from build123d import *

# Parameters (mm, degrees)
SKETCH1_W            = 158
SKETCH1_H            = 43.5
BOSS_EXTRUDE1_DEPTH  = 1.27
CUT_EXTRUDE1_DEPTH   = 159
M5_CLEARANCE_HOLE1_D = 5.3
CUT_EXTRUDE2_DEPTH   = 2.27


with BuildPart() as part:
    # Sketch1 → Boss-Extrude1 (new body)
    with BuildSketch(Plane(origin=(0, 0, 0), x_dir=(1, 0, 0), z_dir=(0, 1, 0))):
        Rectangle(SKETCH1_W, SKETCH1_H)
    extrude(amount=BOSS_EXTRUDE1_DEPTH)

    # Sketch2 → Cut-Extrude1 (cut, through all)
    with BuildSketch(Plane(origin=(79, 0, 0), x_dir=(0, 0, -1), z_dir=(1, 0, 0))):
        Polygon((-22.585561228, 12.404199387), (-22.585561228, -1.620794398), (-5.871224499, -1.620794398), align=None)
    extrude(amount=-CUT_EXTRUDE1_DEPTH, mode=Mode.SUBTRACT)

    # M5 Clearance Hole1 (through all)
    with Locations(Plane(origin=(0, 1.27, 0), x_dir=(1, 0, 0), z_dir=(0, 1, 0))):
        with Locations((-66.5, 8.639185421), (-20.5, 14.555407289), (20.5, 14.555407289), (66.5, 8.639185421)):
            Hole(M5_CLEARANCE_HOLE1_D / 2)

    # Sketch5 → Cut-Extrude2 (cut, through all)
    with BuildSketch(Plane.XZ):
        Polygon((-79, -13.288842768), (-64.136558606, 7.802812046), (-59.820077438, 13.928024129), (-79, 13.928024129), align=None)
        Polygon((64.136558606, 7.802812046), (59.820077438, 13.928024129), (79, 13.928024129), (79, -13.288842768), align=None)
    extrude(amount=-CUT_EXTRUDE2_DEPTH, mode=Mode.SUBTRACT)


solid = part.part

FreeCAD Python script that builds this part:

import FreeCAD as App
import Part
import Sketcher
from FreeCAD import Vector
Q = App.Units.Quantity

doc = App.newDocument("Part")
body = doc.addObject("PartDesign::Body", "Body")

sketch1 = doc.addObject("Sketcher::SketchObject", "Sketch")
body.addObject(sketch1)
sketch1.AttachmentSupport = (doc.XZ_Plane, [""])
sketch1.MapMode = "FlatFace"
sketch1.addGeometry(Part.LineSegment(Vector(-79, -22, 0), Vector(-79, 22, 0)), False)
sketch1.addGeometry(Part.LineSegment(Vector(-79, 22, 0), Vector(79, 22, 0)), False)
sketch1.addGeometry(Part.LineSegment(Vector(79, 22, 0), Vector(79, -22, 0)), False)
sketch1.addGeometry(Part.LineSegment(Vector(79, -22, 0), Vector(-79, -22, 0)), False)
sketch1.addConstraint(Sketcher.Constraint("Coincident", 0, 2, 1, 1))
sketch1.addConstraint(Sketcher.Constraint("Coincident", 1, 2, 2, 1))
sketch1.addConstraint(Sketcher.Constraint("Coincident", 2, 2, 3, 1))
sketch1.addConstraint(Sketcher.Constraint("Coincident", 3, 2, 0, 1))
sketch1.addConstraint(Sketcher.Constraint("Vertical", 0))
sketch1.addConstraint(Sketcher.Constraint("Horizontal", 1))
sketch1.addConstraint(Sketcher.Constraint("Vertical", 2))
sketch1.addConstraint(Sketcher.Constraint("Horizontal", 3))
sketch1.addConstraint(Sketcher.Constraint("Symmetric", 0, 2, 2, 2, -1, 1))
sketch1.addConstraint(Sketcher.Constraint("DistanceX", 1, 1, 1, 2, 158.0))
sketch1.addConstraint(Sketcher.Constraint("DistanceY", 0, 1, 0, 2, 43.5))
pad1 = doc.addObject("PartDesign::Pad", "Pad")
body.addObject(pad1)
pad1.Profile = sketch1
pad1.Length = 1.27
pad1.Reversed = True

sketch2 = doc.addObject("Sketcher::SketchObject", "Sketch001")
body.addObject(sketch2)
sketch2.AttachmentSupport = (doc.YZ_Plane, [""])
sketch2.MapMode = "FlatFace"
sketch2.AttachmentOffset = App.Placement(Vector(0, 0, 79), App.Rotation())
sketch2.addGeometry(Part.LineSegment(Vector(12, 23, 0), Vector(-2, 23, 0)), False)
sketch2.addGeometry(Part.LineSegment(Vector(-2, 23, 0), Vector(-2, 6, 0)), False)
sketch2.addGeometry(Part.LineSegment(Vector(-2, 6, 0), Vector(12, 23, 0)), False)
sketch2.addConstraint(Sketcher.Constraint("Coincident", 0, 2, 1, 1))
sketch2.addConstraint(Sketcher.Constraint("Coincident", 1, 2, 2, 1))
sketch2.addConstraint(Sketcher.Constraint("Coincident", 2, 2, 0, 1))
sketch2.addConstraint(Sketcher.Constraint("Horizontal", 0))
sketch2.addConstraint(Sketcher.Constraint("Vertical", 1))
sketch2.addConstraint(Sketcher.Constraint("Angle", 2, Q("50 deg")))
sketch2.addConstraint(Sketcher.Constraint("DistanceX", -1, 1, 2, 2, 12.404199))
sketch2.addConstraint(Sketcher.Constraint("DistanceX", 0, 2, 0, 1, 14.024994))
sketch2.addConstraint(Sketcher.Constraint("DistanceY", -1, 1, 0, 2, 22.585561))
pocket1 = doc.addObject("PartDesign::Pocket", "Pocket")
body.addObject(pocket1)
pocket1.Profile = sketch2
pocket1.Type = "ThroughAll"

sketch3 = doc.addObject("Sketcher::SketchObject", "Sketch002")
body.addObject(sketch3)
sketch3.AttachmentSupport = (doc.XZ_Plane, [""])
sketch3.MapMode = "FlatFace"
sketch3.AttachmentOffset = App.Placement(Vector(0, 0, -1.27), App.Rotation())
sketch3.addGeometry(Part.Circle(Vector(-66.5, -8.6, 0), Vector(0, 0, 1), 2.6), False)
sketch3.addGeometry(Part.Circle(Vector(-20.5, -14.6, 0), Vector(0, 0, 1), 2.6), False)
sketch3.addGeometry(Part.Circle(Vector(20.5, -14.6, 0), Vector(0, 0, 1), 2.6), False)
sketch3.addGeometry(Part.Circle(Vector(66.5, -8.6, 0), Vector(0, 0, 1), 2.6), False)
sketch3.addConstraint(Sketcher.Constraint("Equal", 0, 1))
sketch3.addConstraint(Sketcher.Constraint("Equal", 1, 2))
sketch3.addConstraint(Sketcher.Constraint("Equal", 2, 3))
sketch3.addConstraint(Sketcher.Constraint("Symmetric", 1, 3, 2, 3, -2))
sketch3.addConstraint(Sketcher.Constraint("Symmetric", 0, 3, 3, 3, -2))
sketch3.addConstraint(Sketcher.Constraint("Diameter", 0, 5.3))
sketch3.addConstraint(Sketcher.Constraint("DistanceX", 0, 3, 1, 3, 46.0))
sketch3.addConstraint(Sketcher.Constraint("DistanceX", 1, 3, 2, 3, 41.0))
sketch3.addConstraint(Sketcher.Constraint("DistanceY", 1, 3, 0, 3, 5.916222))
sketch3.addConstraint(Sketcher.Constraint("DistanceY", 0, 3, -1, 1, 8.639185))
doc.recompute()
hole = doc.addObject("PartDesign::Hole", "Hole")
body.addObject(hole)
hole.Profile = sketch3
hole.ThreadType = "None"
hole.Diameter = 5.3
hole.DepthType = "ThroughAll"
hole.Reversed = True

sketch4 = doc.addObject("Sketcher::SketchObject", "Sketch003")
body.addObject(sketch4)
sketch4.AttachmentSupport = (doc.XZ_Plane, [""])
sketch4.MapMode = "FlatFace"
sketch4.addGeometry(Part.LineSegment(Vector(-79, -13, 0), Vector(-64, 8, 0)), False)
sketch4.addGeometry(Part.LineSegment(Vector(-64, 8, 0), Vector(-60, 14, 0)), False)
sketch4.addGeometry(Part.LineSegment(Vector(-60, 14, 0), Vector(-79, 14, 0)), False)
sketch4.addGeometry(Part.LineSegment(Vector(-79, 14, 0), Vector(-79, -13, 0)), False)
sketch4.addGeometry(Part.LineSegment(Vector(60, 14, 0), Vector(64, 8, 0)), False)
sketch4.addGeometry(Part.LineSegment(Vector(64, 8, 0), Vector(79, -13, 0)), False)
sketch4.addGeometry(Part.LineSegment(Vector(79, -13, 0), Vector(79, 14, 0)), False)
sketch4.addGeometry(Part.LineSegment(Vector(79, 14, 0), Vector(60, 14, 0)), False)
sketch4.addConstraint(Sketcher.Constraint("Coincident", 0, 2, 1, 1))
sketch4.addConstraint(Sketcher.Constraint("Coincident", 1, 2, 2, 1))
sketch4.addConstraint(Sketcher.Constraint("Coincident", 2, 2, 3, 1))
sketch4.addConstraint(Sketcher.Constraint("Coincident", 3, 2, 0, 1))
sketch4.addConstraint(Sketcher.Constraint("Coincident", 4, 2, 5, 1))
sketch4.addConstraint(Sketcher.Constraint("Coincident", 5, 2, 6, 1))
sketch4.addConstraint(Sketcher.Constraint("Coincident", 6, 2, 7, 1))
sketch4.addConstraint(Sketcher.Constraint("Coincident", 7, 2, 4, 1))
sketch4.addConstraint(Sketcher.Constraint("Horizontal", 2))
sketch4.addConstraint(Sketcher.Constraint("Vertical", 3))
sketch4.addConstraint(Sketcher.Constraint("Vertical", 6))
sketch4.addConstraint(Sketcher.Constraint("Horizontal", 7))
sketch4.addConstraint(Sketcher.Constraint("Symmetric", 0, 2, 4, 2, -2))
sketch4.addConstraint(Sketcher.Constraint("Symmetric", 3, 2, 5, 2, -2))
sketch4.addConstraint(Sketcher.Constraint("Symmetric", 1, 2, 7, 2, -2))
sketch4.addConstraint(Sketcher.Constraint("Parallel", 0, 1))
sketch4.addConstraint(Sketcher.Constraint("DistanceX", 2, 2, -1, 1, 79.0))
sketch4.addConstraint(Sketcher.Constraint("Distance", 0, 25.802709))
sketch4.addConstraint(Sketcher.Constraint("DistanceX", 2, 2, 2, 1, 19.179923))
sketch4.addConstraint(Sketcher.Constraint("DistanceY", 3, 2, 3, 1, 27.216867))
sketch4.addConstraint(Sketcher.Constraint("DistanceY", -1, 1, 0, 2, 7.802812))
pocket2 = doc.addObject("PartDesign::Pocket", "Pocket001")
body.addObject(pocket2)
pocket2.Profile = sketch4
pocket2.Type = "ThroughAll"

doc.recompute()
